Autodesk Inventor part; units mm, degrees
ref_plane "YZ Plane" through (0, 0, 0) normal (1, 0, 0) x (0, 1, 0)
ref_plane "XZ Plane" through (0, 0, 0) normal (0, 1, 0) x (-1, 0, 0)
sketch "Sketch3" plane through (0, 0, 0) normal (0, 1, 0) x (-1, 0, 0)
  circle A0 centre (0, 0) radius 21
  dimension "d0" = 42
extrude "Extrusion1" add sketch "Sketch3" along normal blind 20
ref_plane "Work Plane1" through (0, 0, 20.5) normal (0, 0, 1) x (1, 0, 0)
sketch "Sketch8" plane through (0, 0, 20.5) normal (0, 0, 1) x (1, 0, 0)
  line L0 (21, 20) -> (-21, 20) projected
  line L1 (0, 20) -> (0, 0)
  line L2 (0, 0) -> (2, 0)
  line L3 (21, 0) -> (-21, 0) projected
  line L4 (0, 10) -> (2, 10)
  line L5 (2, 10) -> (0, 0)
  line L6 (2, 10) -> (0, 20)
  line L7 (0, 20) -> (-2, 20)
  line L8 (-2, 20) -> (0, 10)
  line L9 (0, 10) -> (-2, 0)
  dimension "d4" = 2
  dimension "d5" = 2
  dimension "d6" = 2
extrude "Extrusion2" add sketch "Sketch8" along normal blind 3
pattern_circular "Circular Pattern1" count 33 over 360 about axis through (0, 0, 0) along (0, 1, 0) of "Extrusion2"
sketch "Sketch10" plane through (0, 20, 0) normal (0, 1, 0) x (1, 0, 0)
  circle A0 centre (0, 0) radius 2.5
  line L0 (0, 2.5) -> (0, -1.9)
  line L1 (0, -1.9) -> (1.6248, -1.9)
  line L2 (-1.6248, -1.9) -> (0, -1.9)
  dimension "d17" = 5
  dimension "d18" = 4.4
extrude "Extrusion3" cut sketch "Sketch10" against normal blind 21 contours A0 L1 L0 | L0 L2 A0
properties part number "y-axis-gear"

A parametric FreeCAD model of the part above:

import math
import FreeCAD as App
import Part
import Sketcher
Q = App.Units.Quantity

doc = App.newDocument("Part")
body = doc.addObject("PartDesign::Body", "Body")

sketch1 = doc.addObject("Sketcher::SketchObject", "Sketch")
body.addObject(sketch1)
sketch1.AttachmentSupport = (doc.XZ_Plane, [""])
sketch1.MapMode = "FlatFace"
sketch1.addGeometry(Part.Circle(App.Vector(0, 0, 0), App.Vector(0, 0, 1), 21), False)
sketch1.addConstraint([
    Sketcher.Constraint("Coincident", 0, 3, -1, 1),
    Sketcher.Constraint("Diameter", 0, Q("42 mm")),
])
pad1 = doc.addObject("PartDesign::Pad", "Pad")
body.addObject(pad1)
pad1.Profile = sketch1
pad1.Length = 20
pad1.Reversed = True

sketch2 = doc.addObject("Sketcher::SketchObject", "Sketch001")
body.addObject(sketch2)
sketch2.AttachmentSupport = (doc.XY_Plane, [""])
sketch2.MapMode = "FlatFace"
sketch2.AttachmentOffset = App.Placement(App.Vector(0, 0, 20.5), App.Rotation())
sketch2.addGeometry([
    Part.LineSegment(App.Vector(-2, 20, 0), App.Vector(0, 10, 0)),
    Part.LineSegment(App.Vector(0, 10, 0), App.Vector(-2, 0, 0)),
    Part.LineSegment(App.Vector(-2, 0, 0), App.Vector(0, 0, 0)),
    Part.LineSegment(App.Vector(0, 0, 0), App.Vector(2, 10, 0)),
    Part.LineSegment(App.Vector(2, 10, 0), App.Vector(0, 20, 0)),
    Part.LineSegment(App.Vector(0, 20, 0), App.Vector(-2, 20, 0)),
], False)
sketch2.addConstraint([
    Sketcher.Constraint("Coincident", 0, 2, 1, 1),
    Sketcher.Constraint("Coincident", 1, 2, 2, 1),
    Sketcher.Constraint("Coincident", 2, 2, 3, 1),
    Sketcher.Constraint("Coincident", 3, 2, 4, 1),
    Sketcher.Constraint("Coincident", 4, 2, 5, 1),
    Sketcher.Constraint("Coincident", 5, 2, 0, 1),
    Sketcher.Constraint("Horizontal", 2),
    Sketcher.Constraint("Horizontal", 5),
    Sketcher.Constraint("Coincident", 2, 2, -1, 1),
    Sketcher.Constraint("PointOnObject", 0, 2, -2),
    Sketcher.Constraint("PointOnObject", 4, 2, -2),
    Sketcher.Constraint("Parallel", 1, 3),
    Sketcher.Constraint("Parallel", 0, 4),
    Sketcher.Constraint("Horizontal", 0, 2, 3, 2),
    Sketcher.Constraint("Equal", 0, 1),
    Sketcher.Constraint("DistanceX", 2, 1, 2, 2, Q("2 mm")),
    Sketcher.Constraint("DistanceY", -1, 1, 0, 2, Q("10 mm")),
])
pad2 = doc.addObject("PartDesign::Pad", "Pad001")
body.addObject(pad2)
pad2.Profile = sketch2
pad2.Length = 3
doc.recompute()

polarpattern = doc.addObject("PartDesign::PolarPattern", "PolarPattern")
body.addObject(polarpattern)
polarpattern.Originals = [pad2]
polarpattern.Axis = (doc.Y_Axis, [""])
polarpattern.Angle = 360
polarpattern.Occurrences = 33
body.Tip = polarpattern

sketch3 = doc.addObject("Sketcher::SketchObject", "Sketch002")
body.addObject(sketch3)
sketch3.AttachmentSupport = (doc.XZ_Plane, [""])
sketch3.MapMode = "FlatFace"
sketch3.AttachmentOffset = App.Placement(App.Vector(0, 0, -20), App.Rotation())
sketch3.addGeometry([
    Part.ArcOfCircle(Part.Circle(App.Vector(0, 0, 0), App.Vector(0, 0, 1), 2.5), math.radians(131), math.radians(409)),
    Part.LineSegment(App.Vector(1.6, 1.9, 0), App.Vector(-1.6, 1.9, 0)),
], False)
sketch3.addConstraint([
    Sketcher.Constraint("Coincident", 0, 1, 1, 2),
    Sketcher.Constraint("Coincident", 1, 1, 0, 2),
    Sketcher.Constraint("Horizontal", 1),
    Sketcher.Constraint("Coincident", 0, 3, -1, 1),
    Sketcher.Constraint("Radius", 0, Q("2.5 mm")),
    Sketcher.Constraint("DistanceY", -1, 1, 0, 1, Q("1.9 mm")),
])
pocket1 = doc.addObject("PartDesign::Pocket", "Pocket")
body.addObject(pocket1)
pocket1.Profile = sketch3
pocket1.Length = 21
pocket1.Reversed = True

doc.recompute()
